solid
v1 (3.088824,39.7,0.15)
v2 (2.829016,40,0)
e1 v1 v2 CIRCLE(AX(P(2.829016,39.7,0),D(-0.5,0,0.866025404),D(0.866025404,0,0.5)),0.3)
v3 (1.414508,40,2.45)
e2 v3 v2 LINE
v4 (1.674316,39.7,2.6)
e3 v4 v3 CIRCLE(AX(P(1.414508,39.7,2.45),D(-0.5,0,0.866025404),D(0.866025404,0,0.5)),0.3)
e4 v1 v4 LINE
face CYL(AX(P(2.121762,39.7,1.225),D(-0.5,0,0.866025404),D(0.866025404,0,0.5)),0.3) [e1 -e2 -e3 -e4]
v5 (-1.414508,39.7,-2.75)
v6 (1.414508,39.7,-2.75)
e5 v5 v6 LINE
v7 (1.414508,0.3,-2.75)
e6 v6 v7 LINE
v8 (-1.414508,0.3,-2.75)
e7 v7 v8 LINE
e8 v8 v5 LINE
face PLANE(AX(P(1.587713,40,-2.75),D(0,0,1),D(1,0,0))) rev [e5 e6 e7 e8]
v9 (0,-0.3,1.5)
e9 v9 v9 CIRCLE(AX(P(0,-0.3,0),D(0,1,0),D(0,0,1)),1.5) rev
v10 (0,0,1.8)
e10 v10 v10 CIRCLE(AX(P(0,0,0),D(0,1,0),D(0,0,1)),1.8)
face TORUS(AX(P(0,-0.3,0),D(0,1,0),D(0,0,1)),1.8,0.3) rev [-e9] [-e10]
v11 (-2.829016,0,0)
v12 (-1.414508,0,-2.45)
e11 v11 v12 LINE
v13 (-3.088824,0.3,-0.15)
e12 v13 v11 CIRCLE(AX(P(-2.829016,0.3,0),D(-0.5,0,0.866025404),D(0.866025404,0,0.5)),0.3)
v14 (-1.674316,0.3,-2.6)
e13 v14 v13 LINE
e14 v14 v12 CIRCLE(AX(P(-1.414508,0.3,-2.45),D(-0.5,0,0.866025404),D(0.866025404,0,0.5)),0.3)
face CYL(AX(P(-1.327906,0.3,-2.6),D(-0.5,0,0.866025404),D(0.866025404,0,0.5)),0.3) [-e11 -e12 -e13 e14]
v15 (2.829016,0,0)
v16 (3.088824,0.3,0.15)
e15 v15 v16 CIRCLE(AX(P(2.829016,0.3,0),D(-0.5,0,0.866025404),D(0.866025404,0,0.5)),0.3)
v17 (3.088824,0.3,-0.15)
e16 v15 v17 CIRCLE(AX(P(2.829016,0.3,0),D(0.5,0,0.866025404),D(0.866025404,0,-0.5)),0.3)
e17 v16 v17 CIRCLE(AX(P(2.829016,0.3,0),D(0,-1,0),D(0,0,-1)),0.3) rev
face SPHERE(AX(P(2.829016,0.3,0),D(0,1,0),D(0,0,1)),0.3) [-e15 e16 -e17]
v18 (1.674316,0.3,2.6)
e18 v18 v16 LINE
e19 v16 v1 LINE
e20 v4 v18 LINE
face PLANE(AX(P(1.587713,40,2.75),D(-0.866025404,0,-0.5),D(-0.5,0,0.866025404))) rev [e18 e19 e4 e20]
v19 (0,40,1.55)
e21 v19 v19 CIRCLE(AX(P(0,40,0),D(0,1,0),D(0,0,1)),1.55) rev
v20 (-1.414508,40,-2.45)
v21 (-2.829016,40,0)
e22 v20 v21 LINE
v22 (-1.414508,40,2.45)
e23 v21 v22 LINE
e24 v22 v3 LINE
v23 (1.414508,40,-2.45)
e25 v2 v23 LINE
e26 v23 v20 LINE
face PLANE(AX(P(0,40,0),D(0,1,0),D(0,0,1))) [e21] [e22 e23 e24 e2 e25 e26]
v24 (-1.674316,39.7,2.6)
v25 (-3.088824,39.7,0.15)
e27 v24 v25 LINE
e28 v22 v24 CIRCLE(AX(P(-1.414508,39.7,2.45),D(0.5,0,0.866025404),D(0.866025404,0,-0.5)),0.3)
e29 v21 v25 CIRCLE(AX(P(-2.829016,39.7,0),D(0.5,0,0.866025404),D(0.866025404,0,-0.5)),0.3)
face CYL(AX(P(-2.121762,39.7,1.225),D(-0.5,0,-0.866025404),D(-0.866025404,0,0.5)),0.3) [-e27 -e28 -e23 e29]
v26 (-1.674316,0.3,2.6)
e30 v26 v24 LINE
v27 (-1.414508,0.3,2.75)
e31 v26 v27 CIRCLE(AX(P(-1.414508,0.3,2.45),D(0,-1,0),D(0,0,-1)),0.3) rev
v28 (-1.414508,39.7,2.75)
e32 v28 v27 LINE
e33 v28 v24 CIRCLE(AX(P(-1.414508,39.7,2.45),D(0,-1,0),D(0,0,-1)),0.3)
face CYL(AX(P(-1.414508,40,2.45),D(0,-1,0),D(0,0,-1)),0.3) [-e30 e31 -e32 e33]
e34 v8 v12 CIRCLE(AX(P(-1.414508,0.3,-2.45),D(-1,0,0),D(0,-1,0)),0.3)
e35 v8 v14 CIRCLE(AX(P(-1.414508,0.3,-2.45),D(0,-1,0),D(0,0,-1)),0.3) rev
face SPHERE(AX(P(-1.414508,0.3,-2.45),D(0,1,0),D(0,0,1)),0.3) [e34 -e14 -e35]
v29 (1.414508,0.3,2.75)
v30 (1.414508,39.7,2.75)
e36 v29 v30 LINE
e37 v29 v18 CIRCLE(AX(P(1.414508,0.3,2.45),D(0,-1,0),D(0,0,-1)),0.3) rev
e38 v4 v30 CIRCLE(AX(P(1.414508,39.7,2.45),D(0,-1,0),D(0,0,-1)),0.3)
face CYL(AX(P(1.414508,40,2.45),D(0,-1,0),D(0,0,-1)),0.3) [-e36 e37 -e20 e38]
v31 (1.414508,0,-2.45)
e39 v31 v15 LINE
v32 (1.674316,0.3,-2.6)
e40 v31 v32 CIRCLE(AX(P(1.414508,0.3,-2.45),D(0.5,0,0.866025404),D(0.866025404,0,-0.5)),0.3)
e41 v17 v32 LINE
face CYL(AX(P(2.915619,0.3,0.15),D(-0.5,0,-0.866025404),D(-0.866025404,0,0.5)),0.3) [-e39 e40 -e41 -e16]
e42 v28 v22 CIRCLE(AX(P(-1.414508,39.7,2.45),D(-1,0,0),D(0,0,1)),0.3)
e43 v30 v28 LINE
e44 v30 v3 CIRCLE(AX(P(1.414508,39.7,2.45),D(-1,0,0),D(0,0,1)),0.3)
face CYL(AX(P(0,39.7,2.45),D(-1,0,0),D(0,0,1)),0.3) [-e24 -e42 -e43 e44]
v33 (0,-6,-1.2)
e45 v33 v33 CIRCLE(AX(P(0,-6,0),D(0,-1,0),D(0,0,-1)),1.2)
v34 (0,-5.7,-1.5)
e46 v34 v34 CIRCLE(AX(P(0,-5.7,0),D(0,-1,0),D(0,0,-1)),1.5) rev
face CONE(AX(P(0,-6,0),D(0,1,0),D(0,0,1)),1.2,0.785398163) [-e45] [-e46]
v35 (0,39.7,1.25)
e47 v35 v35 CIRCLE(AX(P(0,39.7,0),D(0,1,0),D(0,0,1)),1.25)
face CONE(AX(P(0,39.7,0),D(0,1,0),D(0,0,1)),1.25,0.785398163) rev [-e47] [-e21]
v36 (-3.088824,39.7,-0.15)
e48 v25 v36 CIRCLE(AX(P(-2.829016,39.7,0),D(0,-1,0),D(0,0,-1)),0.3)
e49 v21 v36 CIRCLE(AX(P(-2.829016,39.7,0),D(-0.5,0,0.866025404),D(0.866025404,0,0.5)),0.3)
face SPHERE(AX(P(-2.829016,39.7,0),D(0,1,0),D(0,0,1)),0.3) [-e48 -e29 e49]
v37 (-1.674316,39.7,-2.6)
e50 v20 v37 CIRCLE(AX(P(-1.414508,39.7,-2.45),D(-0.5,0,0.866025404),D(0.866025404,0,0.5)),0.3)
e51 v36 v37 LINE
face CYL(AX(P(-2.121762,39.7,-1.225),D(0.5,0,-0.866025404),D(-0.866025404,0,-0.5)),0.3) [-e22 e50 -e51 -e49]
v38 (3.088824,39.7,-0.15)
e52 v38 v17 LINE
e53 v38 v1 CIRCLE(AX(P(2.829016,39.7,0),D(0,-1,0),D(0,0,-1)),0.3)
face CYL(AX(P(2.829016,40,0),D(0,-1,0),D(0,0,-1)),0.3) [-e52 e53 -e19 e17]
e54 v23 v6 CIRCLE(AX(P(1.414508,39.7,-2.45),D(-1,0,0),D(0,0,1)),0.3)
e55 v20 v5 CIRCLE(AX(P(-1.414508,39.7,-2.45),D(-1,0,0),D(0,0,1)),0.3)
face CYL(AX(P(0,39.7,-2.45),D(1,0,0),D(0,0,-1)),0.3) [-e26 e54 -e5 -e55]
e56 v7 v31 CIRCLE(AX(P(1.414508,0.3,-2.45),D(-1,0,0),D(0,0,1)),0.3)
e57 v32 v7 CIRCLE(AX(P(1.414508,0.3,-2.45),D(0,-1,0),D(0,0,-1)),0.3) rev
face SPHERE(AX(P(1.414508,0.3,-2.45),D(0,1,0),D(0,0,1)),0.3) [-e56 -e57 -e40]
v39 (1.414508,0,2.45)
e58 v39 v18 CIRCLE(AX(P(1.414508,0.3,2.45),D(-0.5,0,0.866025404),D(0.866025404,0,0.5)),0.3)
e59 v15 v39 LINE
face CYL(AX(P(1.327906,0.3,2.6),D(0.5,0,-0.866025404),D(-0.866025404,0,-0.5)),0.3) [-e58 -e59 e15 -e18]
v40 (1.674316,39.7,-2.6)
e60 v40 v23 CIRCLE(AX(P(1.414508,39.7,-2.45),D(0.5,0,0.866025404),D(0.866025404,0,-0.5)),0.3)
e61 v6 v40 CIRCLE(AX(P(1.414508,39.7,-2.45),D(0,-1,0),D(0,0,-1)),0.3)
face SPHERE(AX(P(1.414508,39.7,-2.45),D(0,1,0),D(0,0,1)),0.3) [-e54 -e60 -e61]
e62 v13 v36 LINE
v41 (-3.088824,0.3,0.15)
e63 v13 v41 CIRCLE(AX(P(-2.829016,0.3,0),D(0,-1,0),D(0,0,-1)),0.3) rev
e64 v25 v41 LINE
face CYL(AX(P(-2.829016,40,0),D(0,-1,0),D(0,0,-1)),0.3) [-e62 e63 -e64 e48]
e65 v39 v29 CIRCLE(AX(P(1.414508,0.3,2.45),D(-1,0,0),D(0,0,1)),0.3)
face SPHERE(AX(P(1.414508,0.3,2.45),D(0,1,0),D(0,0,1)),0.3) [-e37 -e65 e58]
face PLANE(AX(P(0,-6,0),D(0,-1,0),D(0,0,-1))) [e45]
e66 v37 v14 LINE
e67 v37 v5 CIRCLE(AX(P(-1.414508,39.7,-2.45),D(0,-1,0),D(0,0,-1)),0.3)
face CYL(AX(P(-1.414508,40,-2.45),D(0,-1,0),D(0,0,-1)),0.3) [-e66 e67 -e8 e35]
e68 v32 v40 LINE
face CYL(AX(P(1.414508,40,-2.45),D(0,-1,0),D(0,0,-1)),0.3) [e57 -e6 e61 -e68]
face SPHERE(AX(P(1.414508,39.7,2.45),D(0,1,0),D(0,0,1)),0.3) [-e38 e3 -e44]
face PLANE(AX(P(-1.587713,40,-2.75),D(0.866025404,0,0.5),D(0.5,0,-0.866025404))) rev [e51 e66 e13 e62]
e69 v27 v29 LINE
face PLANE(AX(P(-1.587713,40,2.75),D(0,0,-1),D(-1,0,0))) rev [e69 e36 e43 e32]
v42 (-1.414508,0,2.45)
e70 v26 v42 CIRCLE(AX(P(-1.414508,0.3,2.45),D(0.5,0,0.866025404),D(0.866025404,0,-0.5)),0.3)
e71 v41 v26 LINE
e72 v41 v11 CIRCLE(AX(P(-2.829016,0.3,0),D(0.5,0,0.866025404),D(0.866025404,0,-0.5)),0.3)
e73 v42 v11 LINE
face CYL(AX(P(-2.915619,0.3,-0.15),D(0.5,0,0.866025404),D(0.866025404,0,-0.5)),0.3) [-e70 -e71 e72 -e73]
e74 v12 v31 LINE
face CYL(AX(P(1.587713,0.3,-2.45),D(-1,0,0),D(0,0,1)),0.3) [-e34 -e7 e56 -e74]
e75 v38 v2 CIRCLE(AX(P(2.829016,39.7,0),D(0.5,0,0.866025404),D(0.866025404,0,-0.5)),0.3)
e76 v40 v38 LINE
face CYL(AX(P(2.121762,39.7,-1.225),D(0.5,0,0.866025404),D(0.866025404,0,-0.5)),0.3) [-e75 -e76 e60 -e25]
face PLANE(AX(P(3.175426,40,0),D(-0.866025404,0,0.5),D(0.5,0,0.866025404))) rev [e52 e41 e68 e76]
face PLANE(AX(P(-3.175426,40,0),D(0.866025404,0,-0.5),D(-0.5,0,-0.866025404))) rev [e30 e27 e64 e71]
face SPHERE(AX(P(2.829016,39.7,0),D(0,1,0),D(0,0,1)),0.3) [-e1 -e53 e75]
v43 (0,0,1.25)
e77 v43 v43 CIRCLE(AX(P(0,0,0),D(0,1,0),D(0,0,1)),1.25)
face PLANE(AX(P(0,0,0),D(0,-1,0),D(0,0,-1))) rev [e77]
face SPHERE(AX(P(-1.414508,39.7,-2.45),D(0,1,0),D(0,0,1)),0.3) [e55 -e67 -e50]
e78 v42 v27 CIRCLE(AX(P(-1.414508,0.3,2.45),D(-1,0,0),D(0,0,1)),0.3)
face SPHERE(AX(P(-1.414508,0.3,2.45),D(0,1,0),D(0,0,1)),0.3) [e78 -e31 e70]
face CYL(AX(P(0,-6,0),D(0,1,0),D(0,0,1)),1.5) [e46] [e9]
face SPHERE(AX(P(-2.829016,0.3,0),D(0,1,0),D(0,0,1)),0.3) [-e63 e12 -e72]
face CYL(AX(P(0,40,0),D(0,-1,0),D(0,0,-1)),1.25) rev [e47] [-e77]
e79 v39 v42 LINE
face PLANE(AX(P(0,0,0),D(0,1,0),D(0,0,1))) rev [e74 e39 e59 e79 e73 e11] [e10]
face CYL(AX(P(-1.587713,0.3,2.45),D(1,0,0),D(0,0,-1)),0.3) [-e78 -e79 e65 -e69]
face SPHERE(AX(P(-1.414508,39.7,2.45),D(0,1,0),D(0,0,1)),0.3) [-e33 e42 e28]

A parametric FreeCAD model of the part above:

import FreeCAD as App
import Part
import Sketcher
from FreeCAD import Vector
Q = App.Units.Quantity


def edges_at(feature, points):
    """Names of the edges that pass closest to the given points."""
    edges = feature.Shape.Edges
    near = lambda p: min(range(len(edges)), key=lambda i: edges[i].distToShape(Part.Vertex(*p))[0])
    return sorted({f"Edge{near(p) + 1}" for p in points})

doc = App.newDocument("Part")
body = doc.addObject("PartDesign::Body", "Body")

sketch1 = body.newObject("Sketcher::SketchObject", "Sketch")
sketch1.AttachmentSupport = (doc.getObject("XZ_Plane"), [""])
sketch1.MapMode = "FlatFace"
sketch1.addGeometry(Part.LineSegment(Vector(-1.6, -2.8, 0), Vector(-3.2, 0, 0)), False)
sketch1.addGeometry(Part.LineSegment(Vector(-3.2, 0, 0), Vector(-1.6, 2.8, 0)), False)
sketch1.addGeometry(Part.LineSegment(Vector(-1.6, 2.8, 0), Vector(1.6, 2.8, 0)), False)
sketch1.addGeometry(Part.LineSegment(Vector(1.6, 2.8, 0), Vector(3.2, 0, 0)), False)
sketch1.addGeometry(Part.LineSegment(Vector(3.2, 0, 0), Vector(1.6, -2.8, 0)), False)
sketch1.addGeometry(Part.LineSegment(Vector(1.6, -2.8, 0), Vector(-1.6, -2.8, 0)), False)
sketch1.addGeometry(Part.Circle(Vector(0, 0, 0), Vector(0, 0, 1), 1.2), False)
sketch1.addConstraint(Sketcher.Constraint("Coincident", 0, 2, 1, 1))
sketch1.addConstraint(Sketcher.Constraint("Coincident", 1, 2, 2, 1))
sketch1.addConstraint(Sketcher.Constraint("Coincident", 2, 2, 3, 1))
sketch1.addConstraint(Sketcher.Constraint("Coincident", 3, 2, 4, 1))
sketch1.addConstraint(Sketcher.Constraint("Coincident", 4, 2, 5, 1))
sketch1.addConstraint(Sketcher.Constraint("Coincident", 5, 2, 0, 1))
sketch1.addConstraint(Sketcher.Constraint("Horizontal", 2))
sketch1.addConstraint(Sketcher.Constraint("Horizontal", 5))
sketch1.addConstraint(Sketcher.Constraint("Coincident", 6, 3, -1, 1))
sketch1.addConstraint(Sketcher.Constraint("Symmetric", 0, 2, 3, 2, -1, 1))
sketch1.addConstraint(Sketcher.Constraint("Symmetric", 1, 2, 4, 2, -1, 1))
sketch1.addConstraint(Sketcher.Constraint("PointOnObject", 0, 2, -1))
sketch1.addConstraint(Sketcher.Constraint("Parallel", 0, 3))
sketch1.addConstraint(Sketcher.Constraint("Vertical", 2, 2, 4, 2))
sketch1.addConstraint(Sketcher.Constraint("Diameter", 6, 2.5))
sketch1.addConstraint(Sketcher.Constraint("Angle", 0, Q("120 deg")))
sketch1.addConstraint(Sketcher.Constraint("DistanceY", 4, 2, 2, 2, 5.5))
sketch1.addConstraint(Sketcher.Constraint("DistanceX", 2, 1, 2, 2, 3.175426))
pad1 = body.newObject("PartDesign::Pad", "Pad")
pad1.Profile = sketch1
pad1.Length = 40
pad1.Reversed = True
doc.recompute()

fillet = body.newObject("PartDesign::Fillet", "Fillet")
fillet.Base = (pad1, edges_at(pad1, [
    (1.588, 20, -2.75),
    (3.175, 20, 0),
    (1.588, 20, 2.75),
    (-1.588, 20, 2.75),
    (-3.175, 20, 0),
    (-1.588, 20, -2.75),
]))
fillet.Radius = 0.3
doc.recompute()

fillet2 = body.newObject("PartDesign::Fillet", "Fillet001")
fillet2.Base = (fillet, edges_at(fillet, [
    (0, 0, -2.75),
    (0, 40, -2.75),
    (2.382, 0, -1.375),
    (2.382, 0, 1.375),
    (0, 0, 2.75),
    (-2.382, 0, 1.375),
    (-2.382, 0, -1.375),
    (1.565, 0, 2.71),
    (-1.565, 0, 2.71),
    (-3.129, 0, 0),
    (-1.565, 0, -2.71),
    (3.129, 0, 0),
    (1.565, 0, -2.71),
    (2.382, 40, -1.375),
    (-2.382, 40, -1.375),
    (-2.382, 40, 1.375),
    (0, 40, 2.75),
    (2.382, 40, 1.375),
    (1.565, 40, 2.71),
    (-1.565, 40, 2.71),
    (-3.129, 40, 0),
    (-1.565, 40, -2.71),
    (3.129, 40, 0),
    (1.565, 40, -2.71),
]))
fillet2.Radius = 0.3

sketch2 = body.newObject("Sketcher::SketchObject", "Sketch001")
sketch2.AttachmentSupport = (doc.getObject("XZ_Plane"), [""])
sketch2.MapMode = "FlatFace"
sketch2.addGeometry(Part.Circle(Vector(0, 0, 0), Vector(0, 0, 1), 1.5), False)
sketch2.addConstraint(Sketcher.Constraint("Coincident", 0, 3, -1, 1))
sketch2.addConstraint(Sketcher.Constraint("Diameter", 0, 3.0))
pad2 = body.newObject("PartDesign::Pad", "Pad001")
pad2.Profile = sketch2
pad2.Length = 6
doc.recompute()

chamfer = body.newObject("PartDesign::Chamfer", "Chamfer")
chamfer.Base = (pad2, edges_at(pad2, [(0, -6, -1.5), (0, 40, -1.25)]))
chamfer.Size = 0.3
doc.recompute()

fillet3 = body.newObject("PartDesign::Fillet", "Fillet002")
fillet3.Base = (chamfer, edges_at(chamfer, [(0, 0, -1.5)]))
fillet3.Radius = 0.3

doc.recompute()
